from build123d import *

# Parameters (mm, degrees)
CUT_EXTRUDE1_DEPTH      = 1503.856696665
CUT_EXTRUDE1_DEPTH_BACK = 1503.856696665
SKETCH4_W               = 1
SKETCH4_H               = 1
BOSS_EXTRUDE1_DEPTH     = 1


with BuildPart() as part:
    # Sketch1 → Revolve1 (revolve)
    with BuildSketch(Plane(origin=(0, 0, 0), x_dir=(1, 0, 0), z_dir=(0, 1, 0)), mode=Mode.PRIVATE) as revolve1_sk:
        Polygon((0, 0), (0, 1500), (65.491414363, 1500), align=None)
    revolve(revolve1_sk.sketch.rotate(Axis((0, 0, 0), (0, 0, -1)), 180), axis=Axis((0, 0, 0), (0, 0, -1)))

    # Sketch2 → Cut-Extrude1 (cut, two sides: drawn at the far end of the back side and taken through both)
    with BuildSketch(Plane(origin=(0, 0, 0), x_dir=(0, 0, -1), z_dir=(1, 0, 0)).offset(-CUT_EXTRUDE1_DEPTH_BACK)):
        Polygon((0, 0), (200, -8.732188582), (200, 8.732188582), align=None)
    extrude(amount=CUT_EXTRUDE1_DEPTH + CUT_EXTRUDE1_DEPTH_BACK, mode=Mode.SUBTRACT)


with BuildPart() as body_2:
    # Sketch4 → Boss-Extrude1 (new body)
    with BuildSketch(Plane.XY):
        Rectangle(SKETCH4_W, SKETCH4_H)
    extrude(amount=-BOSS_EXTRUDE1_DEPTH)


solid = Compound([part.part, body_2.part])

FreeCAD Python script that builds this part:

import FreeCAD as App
import Part
import Sketcher
from FreeCAD import Vector
Q = App.Units.Quantity


def add_polygon(sketch, points):
    """Adds a closed chain of lines whose ends are joined by coincident constraints."""
    first, n = sketch.GeometryCount, len(points)
    for a, b in zip(points, points[1:] + points[:1]):
        sketch.addGeometry(Part.LineSegment(App.Vector(*a, 0), App.Vector(*b, 0)), False)
    for i in range(n):
        sketch.addConstraint(Sketcher.Constraint("Coincident", first + i, 2, first + (i + 1) % n, 1))

doc = App.newDocument("Part")
params = doc.addObject("Spreadsheet::Sheet", "Params")
for row, (alias, value) in enumerate([
    ("sketch1_height", "1500 mm"),
    ("revolution_angle", "360 deg"),
    ("sketch3_width", "1 mm"),
    ("pad1_length", "1 mm"),
], start=1):
    params.set(f"A{row}", alias)
    params.set(f"B{row}", "=" + value)
    params.setAlias(f"B{row}", alias)

body = doc.addObject("PartDesign::Body", "Body")

# Sketch on XZ plane
sketch1 = doc.addObject("Sketcher::SketchObject", "Sketch")
body.addObject(sketch1)
sketch1.AttachmentSupport = (doc.XZ_Plane, [""])
sketch1.MapMode = "FlatFace"
add_polygon(sketch1, [(0, -1500), (0, 0), (65.491414, -1500)])  # lines 0-2
sketch1.addConstraint(Sketcher.Constraint("Vertical", 0))
sketch1.addConstraint(Sketcher.Constraint("Horizontal", 2))
sketch1.addConstraint(Sketcher.Constraint("Coincident", 0, 2, -1, 1))
sketch1.addConstraint(Sketcher.Constraint("DistanceY", 0, 1, 0, 2, 1500.0))
sketch1.addConstraint(Sketcher.Constraint("Angle", 1, Q("-87.5 deg")))
sketch1.setExpression("Constraints[6]", "Params.sketch1_height")
revolution = doc.addObject("PartDesign::Revolution", "Revolution")
body.addObject(revolution)
revolution.Profile = sketch1
revolution.ReferenceAxis = (sketch1, ["V_Axis"])
revolution.setExpression("Angle", "Params.revolution_angle")

# Sketch on YZ plane
sketch2 = doc.addObject("Sketcher::SketchObject", "Sketch001")
body.addObject(sketch2)
sketch2.AttachmentSupport = (doc.YZ_Plane, [""])
sketch2.MapMode = "FlatFace"
add_polygon(sketch2, [(0, 0), (-8.732189, -200), (8.732189, -200)])  # lines 0-2
sketch2.addConstraint(Sketcher.Constraint("Horizontal", 1))
sketch2.addConstraint(Sketcher.Constraint("Coincident", 2, 2, -1, 1))
sketch2.addConstraint(Sketcher.Constraint("Equal", 0, 2))
sketch2.addConstraint(Sketcher.Constraint("DistanceY", 0, 2, -1, 1, 200.0))
sketch2.addConstraint(Sketcher.Constraint("Angle", 0, Q("-92.5 deg")))
pocket1 = doc.addObject("PartDesign::Pocket", "Pocket")
body.addObject(pocket1)
pocket1.Profile = sketch2
pocket1.Type = "ThroughAll"
pocket1.Midplane = True
body2 = doc.addObject("PartDesign::Body", "Body001")

# Sketch on XY plane
sketch3 = doc.addObject("Sketcher::SketchObject", "Sketch002")
body2.addObject(sketch3)
sketch3.AttachmentSupport = (doc.getObject("XY_Plane001"), [""])
sketch3.MapMode = "FlatFace"
add_polygon(sketch3, [(-0.5, 0.5), (-0.5, -0.5), (0.5, -0.5), (0.5, 0.5)])  # lines 0-3
sketch3.addConstraint(Sketcher.Constraint("Vertical", 0))
sketch3.addConstraint(Sketcher.Constraint("Horizontal", 1))
sketch3.addConstraint(Sketcher.Constraint("Vertical", 2))
sketch3.addConstraint(Sketcher.Constraint("Horizontal", 3))
sketch3.addConstraint(Sketcher.Constraint("Symmetric", 0, 2, 2, 2, -1, 1))
sketch3.addConstraint(Sketcher.Constraint("Equal", 3, 0))
sketch3.addConstraint(Sketcher.Constraint("DistanceX", 1, 1, 1, 2, 1.0))
sketch3.setExpression("Constraints[10]", "Params.sketch3_width")
pad1 = doc.addObject("PartDesign::Pad", "Pad")
body2.addObject(pad1)
pad1.Profile = sketch3
pad1.setExpression("Length", "Params.pad1_length")
pad1.Reversed = True

doc.recompute()
